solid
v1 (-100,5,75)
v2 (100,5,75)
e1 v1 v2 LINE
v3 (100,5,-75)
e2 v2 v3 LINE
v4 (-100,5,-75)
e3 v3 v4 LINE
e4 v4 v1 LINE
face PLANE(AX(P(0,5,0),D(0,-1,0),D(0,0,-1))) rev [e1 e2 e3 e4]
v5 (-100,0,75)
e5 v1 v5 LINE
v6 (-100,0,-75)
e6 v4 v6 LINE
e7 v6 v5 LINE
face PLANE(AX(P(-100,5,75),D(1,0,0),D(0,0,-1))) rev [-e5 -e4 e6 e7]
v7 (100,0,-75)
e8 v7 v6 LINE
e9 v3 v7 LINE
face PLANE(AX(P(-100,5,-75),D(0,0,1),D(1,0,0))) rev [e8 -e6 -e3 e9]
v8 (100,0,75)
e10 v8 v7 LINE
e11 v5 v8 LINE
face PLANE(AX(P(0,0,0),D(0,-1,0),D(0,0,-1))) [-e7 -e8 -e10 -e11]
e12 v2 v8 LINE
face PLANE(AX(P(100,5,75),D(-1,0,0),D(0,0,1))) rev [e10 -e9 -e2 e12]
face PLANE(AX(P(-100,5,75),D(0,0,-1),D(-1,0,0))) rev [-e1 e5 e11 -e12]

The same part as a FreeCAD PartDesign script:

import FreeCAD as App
import Part
import Sketcher

V = App.Vector


def add_polygon(sketch, points):
    """Adds a closed chain of lines whose ends are joined by coincident constraints."""
    first, n = sketch.GeometryCount, len(points)
    for a, b in zip(points, points[1:] + points[:1]):
        sketch.addGeometry(Part.LineSegment(App.Vector(*a, 0), App.Vector(*b, 0)), False)
    for i in range(n):
        sketch.addConstraint(Sketcher.Constraint("Coincident", first + i, 2, first + (i + 1) % n, 1))

doc = App.newDocument("Part")
params = doc.addObject("Spreadsheet::Sheet", "Params")
for row, (alias, value) in enumerate([
    ("sketch1_width", "200 mm"),
    ("sketch1_height", "150 mm"),
    ("pad1_length", "5 mm"),
], start=1):
    params.set(f"A{row}", alias)
    params.set(f"B{row}", "=" + value)
    params.setAlias(f"B{row}", alias)

body = doc.addObject("PartDesign::Body", "Body")

# Sketch on XZ plane
sketch1 = doc.addObject("Sketcher::SketchObject", "Sketch")
body.addObject(sketch1)
sketch1.AttachmentSupport = (doc.XZ_Plane, [""])
sketch1.MapMode = "FlatFace"
add_polygon(sketch1, [(-100, -75), (-100, 75), (100, 75), (100, -75)])  # lines 0-3
sketch1.addConstraint([
    Sketcher.Constraint("Vertical", 0),
    Sketcher.Constraint("Horizontal", 1),
    Sketcher.Constraint("Vertical", 2),
    Sketcher.Constraint("Horizontal", 3),
    Sketcher.Constraint("Symmetric", 0, 2, 2, 2, -1, 1),
    Sketcher.Constraint("DistanceX", 1, 1, 1, 2, 200.0),
    Sketcher.Constraint("DistanceY", 0, 1, 0, 2, 150.0),
])
sketch1.setExpression("Constraints[9]", "Params.sketch1_width")
sketch1.setExpression("Constraints[10]", "Params.sketch1_height")
pad1 = doc.addObject("PartDesign::Pad", "Pad")
body.addObject(pad1)
pad1.Profile = sketch1
pad1.setExpression("Length", "Params.pad1_length")
pad1.Reversed = True

doc.recompute()
